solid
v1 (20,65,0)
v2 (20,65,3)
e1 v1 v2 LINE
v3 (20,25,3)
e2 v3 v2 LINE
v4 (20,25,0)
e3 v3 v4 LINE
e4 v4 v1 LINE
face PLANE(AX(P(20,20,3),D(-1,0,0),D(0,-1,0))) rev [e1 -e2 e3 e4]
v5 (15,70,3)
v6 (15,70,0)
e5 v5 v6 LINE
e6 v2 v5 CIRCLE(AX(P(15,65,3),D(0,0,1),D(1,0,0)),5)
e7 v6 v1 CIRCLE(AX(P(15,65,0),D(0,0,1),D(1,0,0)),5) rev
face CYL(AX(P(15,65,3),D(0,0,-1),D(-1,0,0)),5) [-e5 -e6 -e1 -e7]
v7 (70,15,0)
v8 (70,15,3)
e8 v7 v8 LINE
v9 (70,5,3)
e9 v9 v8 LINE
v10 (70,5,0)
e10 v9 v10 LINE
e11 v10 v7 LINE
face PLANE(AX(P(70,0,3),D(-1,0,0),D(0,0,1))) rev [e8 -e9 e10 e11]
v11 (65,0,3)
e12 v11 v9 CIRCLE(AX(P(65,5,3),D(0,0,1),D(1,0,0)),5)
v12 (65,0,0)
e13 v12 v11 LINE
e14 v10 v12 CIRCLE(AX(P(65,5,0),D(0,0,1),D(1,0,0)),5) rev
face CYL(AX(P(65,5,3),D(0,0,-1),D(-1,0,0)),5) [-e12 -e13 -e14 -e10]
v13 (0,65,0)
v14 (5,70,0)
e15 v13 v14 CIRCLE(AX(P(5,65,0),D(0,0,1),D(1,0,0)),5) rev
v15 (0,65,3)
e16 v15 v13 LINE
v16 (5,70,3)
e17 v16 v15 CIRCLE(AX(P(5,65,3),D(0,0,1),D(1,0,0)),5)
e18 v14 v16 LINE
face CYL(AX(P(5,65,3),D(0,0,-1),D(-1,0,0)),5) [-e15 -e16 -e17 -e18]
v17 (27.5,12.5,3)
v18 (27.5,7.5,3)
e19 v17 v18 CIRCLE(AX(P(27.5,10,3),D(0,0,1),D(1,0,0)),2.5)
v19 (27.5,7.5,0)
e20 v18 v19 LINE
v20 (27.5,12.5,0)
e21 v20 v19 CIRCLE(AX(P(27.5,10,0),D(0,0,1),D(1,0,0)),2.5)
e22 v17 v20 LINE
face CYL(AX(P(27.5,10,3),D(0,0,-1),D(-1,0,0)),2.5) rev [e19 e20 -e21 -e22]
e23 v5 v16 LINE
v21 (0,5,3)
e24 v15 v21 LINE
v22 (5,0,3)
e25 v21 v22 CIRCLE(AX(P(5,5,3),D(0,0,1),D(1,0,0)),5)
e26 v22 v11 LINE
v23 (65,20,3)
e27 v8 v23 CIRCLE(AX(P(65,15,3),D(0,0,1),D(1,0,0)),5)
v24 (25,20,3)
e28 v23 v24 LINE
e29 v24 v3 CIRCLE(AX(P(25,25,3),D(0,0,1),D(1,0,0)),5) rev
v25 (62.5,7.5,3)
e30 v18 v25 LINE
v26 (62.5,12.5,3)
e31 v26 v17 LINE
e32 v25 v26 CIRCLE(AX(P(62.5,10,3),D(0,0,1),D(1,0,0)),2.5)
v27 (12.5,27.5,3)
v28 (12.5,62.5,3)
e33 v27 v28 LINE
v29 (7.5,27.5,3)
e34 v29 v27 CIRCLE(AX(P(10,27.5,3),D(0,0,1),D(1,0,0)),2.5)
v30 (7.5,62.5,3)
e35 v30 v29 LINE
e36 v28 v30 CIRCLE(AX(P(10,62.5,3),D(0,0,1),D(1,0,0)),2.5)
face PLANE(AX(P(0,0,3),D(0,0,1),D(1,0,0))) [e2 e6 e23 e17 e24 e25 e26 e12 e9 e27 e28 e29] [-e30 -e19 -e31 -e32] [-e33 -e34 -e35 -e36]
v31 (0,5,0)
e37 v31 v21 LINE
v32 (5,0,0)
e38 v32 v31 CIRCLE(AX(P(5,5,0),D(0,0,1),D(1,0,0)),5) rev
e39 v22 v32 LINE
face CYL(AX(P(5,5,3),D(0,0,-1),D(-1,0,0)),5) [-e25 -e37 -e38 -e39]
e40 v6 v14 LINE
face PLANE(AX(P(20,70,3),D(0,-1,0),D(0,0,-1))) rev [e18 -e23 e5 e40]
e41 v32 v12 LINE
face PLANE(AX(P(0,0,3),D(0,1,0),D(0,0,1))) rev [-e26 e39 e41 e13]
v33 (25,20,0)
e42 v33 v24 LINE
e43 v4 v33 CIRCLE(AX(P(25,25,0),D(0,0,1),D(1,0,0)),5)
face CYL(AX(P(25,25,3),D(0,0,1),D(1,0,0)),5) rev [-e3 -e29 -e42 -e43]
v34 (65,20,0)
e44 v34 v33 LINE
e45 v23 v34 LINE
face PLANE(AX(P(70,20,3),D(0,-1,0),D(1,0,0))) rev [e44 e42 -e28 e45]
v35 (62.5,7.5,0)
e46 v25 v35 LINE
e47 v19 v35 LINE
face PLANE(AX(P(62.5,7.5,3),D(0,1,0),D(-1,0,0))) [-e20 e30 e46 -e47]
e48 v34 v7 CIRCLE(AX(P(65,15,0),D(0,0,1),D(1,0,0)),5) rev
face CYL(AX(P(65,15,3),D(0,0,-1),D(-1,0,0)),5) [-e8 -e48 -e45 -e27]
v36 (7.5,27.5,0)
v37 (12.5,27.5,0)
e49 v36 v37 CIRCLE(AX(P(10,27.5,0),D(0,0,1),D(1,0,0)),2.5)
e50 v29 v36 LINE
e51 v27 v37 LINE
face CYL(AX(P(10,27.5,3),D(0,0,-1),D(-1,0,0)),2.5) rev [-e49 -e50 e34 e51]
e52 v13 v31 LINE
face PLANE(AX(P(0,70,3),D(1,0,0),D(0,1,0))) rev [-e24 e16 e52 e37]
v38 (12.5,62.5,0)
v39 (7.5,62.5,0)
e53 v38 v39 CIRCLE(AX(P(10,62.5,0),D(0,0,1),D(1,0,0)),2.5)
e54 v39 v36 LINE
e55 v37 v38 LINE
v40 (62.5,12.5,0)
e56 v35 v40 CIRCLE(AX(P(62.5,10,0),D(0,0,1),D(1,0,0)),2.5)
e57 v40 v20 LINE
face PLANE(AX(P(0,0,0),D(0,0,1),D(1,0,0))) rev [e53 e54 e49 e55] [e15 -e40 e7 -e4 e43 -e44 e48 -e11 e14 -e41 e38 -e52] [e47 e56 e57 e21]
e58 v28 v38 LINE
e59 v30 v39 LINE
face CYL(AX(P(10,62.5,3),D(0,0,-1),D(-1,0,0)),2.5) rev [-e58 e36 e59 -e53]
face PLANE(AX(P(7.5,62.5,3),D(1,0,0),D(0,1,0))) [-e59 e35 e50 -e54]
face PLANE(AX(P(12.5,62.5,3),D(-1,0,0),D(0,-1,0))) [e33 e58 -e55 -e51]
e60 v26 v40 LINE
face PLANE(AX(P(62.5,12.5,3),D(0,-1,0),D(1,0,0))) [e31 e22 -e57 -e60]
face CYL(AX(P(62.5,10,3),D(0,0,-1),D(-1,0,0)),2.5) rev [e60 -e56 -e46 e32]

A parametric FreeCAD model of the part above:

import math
import FreeCAD as App
import Part
import Sketcher
from FreeCAD import Vector


def edges_at(feature, points):
    """Names of the edges that pass closest to the given points."""
    edges = feature.Shape.Edges
    near = lambda p: min(range(len(edges)), key=lambda i: edges[i].distToShape(Part.Vertex(*p))[0])
    return sorted({f"Edge{near(p) + 1}" for p in points})


def add_polygon(sketch, points):
    """Adds a closed chain of lines whose ends are joined by coincident constraints."""
    first, n = sketch.GeometryCount, len(points)
    for a, b in zip(points, points[1:] + points[:1]):
        sketch.addGeometry(Part.LineSegment(App.Vector(*a, 0), App.Vector(*b, 0)), False)
    for i in range(n):
        sketch.addConstraint(Sketcher.Constraint("Coincident", first + i, 2, first + (i + 1) % n, 1))

doc = App.newDocument("Part")
params = doc.addObject("Spreadsheet::Sheet", "Params")
for row, (alias, value) in enumerate([
    ("sketch1_radius", "2.5 mm"),
    ("sketch1_width", "70 mm"),
    ("sketch1_width2", "50 mm"),
    ("sketch1_width3", "35 mm"),
    ("pad1_length", "3 mm"),
    ("fillet_radius", "5 mm"),
], start=1):
    params.set(f"A{row}", alias)
    params.set(f"B{row}", "=" + value)
    params.setAlias(f"B{row}", alias)

body = doc.addObject("PartDesign::Body", "Body")

# Sketch on XY plane
sketch1 = doc.addObject("Sketcher::SketchObject", "Sketch")
body.addObject(sketch1)
sketch1.AttachmentSupport = (doc.XY_Plane, [""])
sketch1.MapMode = "FlatFace"
add_polygon(sketch1, [(0, 70), (0, 0), (70, 0), (70, 20), (20, 20), (20, 70)])  # lines 0-5
sketch1.addGeometry(Part.ArcOfCircle(Part.Circle(Vector(62.5, 10, 0), Vector(0, 0, 1), 2.5), math.radians(-90), math.radians(90)), False)  # 6
sketch1.addGeometry(Part.LineSegment(Vector(62.5, 7.5, 0), Vector(27.5, 7.5, 0)), False)  # 7
sketch1.addGeometry(Part.ArcOfCircle(Part.Circle(Vector(27.5, 10, 0), Vector(0, 0, 1), 2.5), math.radians(90), math.radians(270)), False)  # 8
sketch1.addGeometry(Part.LineSegment(Vector(27.5, 12.5, 0), Vector(62.5, 12.5, 0)), False)  # 9
sketch1.addGeometry(Part.ArcOfCircle(Part.Circle(Vector(10, 62.5, 0), Vector(0, 0, 1), 2.5), math.radians(0), math.radians(180)), False)  # 10
sketch1.addGeometry(Part.LineSegment(Vector(12.5, 62.5, 0), Vector(12.5, 27.5, 0)), False)  # 11
sketch1.addGeometry(Part.ArcOfCircle(Part.Circle(Vector(10, 27.5, 0), Vector(0, 0, 1), 2.5), math.radians(180), math.radians(360)), False)  # 12
sketch1.addGeometry(Part.LineSegment(Vector(7.5, 27.5, 0), Vector(7.5, 62.5, 0)), False)  # 13
sketch1.addConstraint([
    Sketcher.Constraint("Tangent", 6, 1, 7, 1),
    Sketcher.Constraint("Tangent", 7, 2, 8, 2),
    Sketcher.Constraint("Tangent", 8, 1, 9, 1),
    Sketcher.Constraint("Tangent", 9, 2, 6, 2),
    Sketcher.Constraint("Tangent", 10, 1, 11, 1),
    Sketcher.Constraint("Tangent", 11, 2, 12, 2),
    Sketcher.Constraint("Tangent", 12, 1, 13, 1),
    Sketcher.Constraint("Tangent", 13, 2, 10, 2),
    Sketcher.Constraint("Vertical", 0),
    Sketcher.Constraint("Horizontal", 1),
    Sketcher.Constraint("Vertical", 2),
    Sketcher.Constraint("Horizontal", 3),
    Sketcher.Constraint("Vertical", 4),
    Sketcher.Constraint("Horizontal", 5),
    Sketcher.Constraint("Horizontal", 7),
    Sketcher.Constraint("Horizontal", 9),
    Sketcher.Constraint("Vertical", 11),
    Sketcher.Constraint("Vertical", 13),
    Sketcher.Constraint("Coincident", 0, 2, -1, 1),
    Sketcher.Constraint("Equal", 8, 10),
    Sketcher.Constraint("Equal", 1, 0),
    Sketcher.Constraint("Equal", 5, 2),
    Sketcher.Constraint("Equal", 9, 11),
    Sketcher.Constraint("Radius", 6, 2.5),
    Sketcher.Constraint("DistanceX", 1, 1, 1, 2, 70.0),
    Sketcher.Constraint("DistanceX", 3, 2, 3, 1, 50.0),
    Sketcher.Constraint("DistanceX", 7, 2, 7, 1, 35.0),
    Sketcher.Constraint("DistanceY", -1, 1, 6, 3, 10.0),
    Sketcher.Constraint("DistanceX", -1, 1, 10, 3, 10.0),
    Sketcher.Constraint("DistanceY", 7, 2, 12, 3, 20.0),
    Sketcher.Constraint("DistanceX", 11, 2, 8, 1, 15.0),
])
sketch1.setExpression("Constraints[29]", "Params.sketch1_radius")
sketch1.setExpression("Constraints[30]", "Params.sketch1_width")
sketch1.setExpression("Constraints[31]", "Params.sketch1_width2")
sketch1.setExpression("Constraints[32]", "Params.sketch1_width3")
pad1 = doc.addObject("PartDesign::Pad", "Pad")
body.addObject(pad1)
pad1.Profile = sketch1
pad1.setExpression("Length", "Params.pad1_length")
doc.recompute()

fillet = doc.addObject("PartDesign::Fillet", "Fillet")
body.addObject(fillet)
fillet.Base = (pad1, edges_at(pad1, [
    (20, 70, 1.5),
    (20, 20, 1.5),
    (70, 20, 1.5),
    (70, 0, 1.5),
    (0, 0, 1.5),
    (0, 70, 1.5),
]))
fillet.setExpression("Radius", "Params.fillet_radius")

doc.recompute()
